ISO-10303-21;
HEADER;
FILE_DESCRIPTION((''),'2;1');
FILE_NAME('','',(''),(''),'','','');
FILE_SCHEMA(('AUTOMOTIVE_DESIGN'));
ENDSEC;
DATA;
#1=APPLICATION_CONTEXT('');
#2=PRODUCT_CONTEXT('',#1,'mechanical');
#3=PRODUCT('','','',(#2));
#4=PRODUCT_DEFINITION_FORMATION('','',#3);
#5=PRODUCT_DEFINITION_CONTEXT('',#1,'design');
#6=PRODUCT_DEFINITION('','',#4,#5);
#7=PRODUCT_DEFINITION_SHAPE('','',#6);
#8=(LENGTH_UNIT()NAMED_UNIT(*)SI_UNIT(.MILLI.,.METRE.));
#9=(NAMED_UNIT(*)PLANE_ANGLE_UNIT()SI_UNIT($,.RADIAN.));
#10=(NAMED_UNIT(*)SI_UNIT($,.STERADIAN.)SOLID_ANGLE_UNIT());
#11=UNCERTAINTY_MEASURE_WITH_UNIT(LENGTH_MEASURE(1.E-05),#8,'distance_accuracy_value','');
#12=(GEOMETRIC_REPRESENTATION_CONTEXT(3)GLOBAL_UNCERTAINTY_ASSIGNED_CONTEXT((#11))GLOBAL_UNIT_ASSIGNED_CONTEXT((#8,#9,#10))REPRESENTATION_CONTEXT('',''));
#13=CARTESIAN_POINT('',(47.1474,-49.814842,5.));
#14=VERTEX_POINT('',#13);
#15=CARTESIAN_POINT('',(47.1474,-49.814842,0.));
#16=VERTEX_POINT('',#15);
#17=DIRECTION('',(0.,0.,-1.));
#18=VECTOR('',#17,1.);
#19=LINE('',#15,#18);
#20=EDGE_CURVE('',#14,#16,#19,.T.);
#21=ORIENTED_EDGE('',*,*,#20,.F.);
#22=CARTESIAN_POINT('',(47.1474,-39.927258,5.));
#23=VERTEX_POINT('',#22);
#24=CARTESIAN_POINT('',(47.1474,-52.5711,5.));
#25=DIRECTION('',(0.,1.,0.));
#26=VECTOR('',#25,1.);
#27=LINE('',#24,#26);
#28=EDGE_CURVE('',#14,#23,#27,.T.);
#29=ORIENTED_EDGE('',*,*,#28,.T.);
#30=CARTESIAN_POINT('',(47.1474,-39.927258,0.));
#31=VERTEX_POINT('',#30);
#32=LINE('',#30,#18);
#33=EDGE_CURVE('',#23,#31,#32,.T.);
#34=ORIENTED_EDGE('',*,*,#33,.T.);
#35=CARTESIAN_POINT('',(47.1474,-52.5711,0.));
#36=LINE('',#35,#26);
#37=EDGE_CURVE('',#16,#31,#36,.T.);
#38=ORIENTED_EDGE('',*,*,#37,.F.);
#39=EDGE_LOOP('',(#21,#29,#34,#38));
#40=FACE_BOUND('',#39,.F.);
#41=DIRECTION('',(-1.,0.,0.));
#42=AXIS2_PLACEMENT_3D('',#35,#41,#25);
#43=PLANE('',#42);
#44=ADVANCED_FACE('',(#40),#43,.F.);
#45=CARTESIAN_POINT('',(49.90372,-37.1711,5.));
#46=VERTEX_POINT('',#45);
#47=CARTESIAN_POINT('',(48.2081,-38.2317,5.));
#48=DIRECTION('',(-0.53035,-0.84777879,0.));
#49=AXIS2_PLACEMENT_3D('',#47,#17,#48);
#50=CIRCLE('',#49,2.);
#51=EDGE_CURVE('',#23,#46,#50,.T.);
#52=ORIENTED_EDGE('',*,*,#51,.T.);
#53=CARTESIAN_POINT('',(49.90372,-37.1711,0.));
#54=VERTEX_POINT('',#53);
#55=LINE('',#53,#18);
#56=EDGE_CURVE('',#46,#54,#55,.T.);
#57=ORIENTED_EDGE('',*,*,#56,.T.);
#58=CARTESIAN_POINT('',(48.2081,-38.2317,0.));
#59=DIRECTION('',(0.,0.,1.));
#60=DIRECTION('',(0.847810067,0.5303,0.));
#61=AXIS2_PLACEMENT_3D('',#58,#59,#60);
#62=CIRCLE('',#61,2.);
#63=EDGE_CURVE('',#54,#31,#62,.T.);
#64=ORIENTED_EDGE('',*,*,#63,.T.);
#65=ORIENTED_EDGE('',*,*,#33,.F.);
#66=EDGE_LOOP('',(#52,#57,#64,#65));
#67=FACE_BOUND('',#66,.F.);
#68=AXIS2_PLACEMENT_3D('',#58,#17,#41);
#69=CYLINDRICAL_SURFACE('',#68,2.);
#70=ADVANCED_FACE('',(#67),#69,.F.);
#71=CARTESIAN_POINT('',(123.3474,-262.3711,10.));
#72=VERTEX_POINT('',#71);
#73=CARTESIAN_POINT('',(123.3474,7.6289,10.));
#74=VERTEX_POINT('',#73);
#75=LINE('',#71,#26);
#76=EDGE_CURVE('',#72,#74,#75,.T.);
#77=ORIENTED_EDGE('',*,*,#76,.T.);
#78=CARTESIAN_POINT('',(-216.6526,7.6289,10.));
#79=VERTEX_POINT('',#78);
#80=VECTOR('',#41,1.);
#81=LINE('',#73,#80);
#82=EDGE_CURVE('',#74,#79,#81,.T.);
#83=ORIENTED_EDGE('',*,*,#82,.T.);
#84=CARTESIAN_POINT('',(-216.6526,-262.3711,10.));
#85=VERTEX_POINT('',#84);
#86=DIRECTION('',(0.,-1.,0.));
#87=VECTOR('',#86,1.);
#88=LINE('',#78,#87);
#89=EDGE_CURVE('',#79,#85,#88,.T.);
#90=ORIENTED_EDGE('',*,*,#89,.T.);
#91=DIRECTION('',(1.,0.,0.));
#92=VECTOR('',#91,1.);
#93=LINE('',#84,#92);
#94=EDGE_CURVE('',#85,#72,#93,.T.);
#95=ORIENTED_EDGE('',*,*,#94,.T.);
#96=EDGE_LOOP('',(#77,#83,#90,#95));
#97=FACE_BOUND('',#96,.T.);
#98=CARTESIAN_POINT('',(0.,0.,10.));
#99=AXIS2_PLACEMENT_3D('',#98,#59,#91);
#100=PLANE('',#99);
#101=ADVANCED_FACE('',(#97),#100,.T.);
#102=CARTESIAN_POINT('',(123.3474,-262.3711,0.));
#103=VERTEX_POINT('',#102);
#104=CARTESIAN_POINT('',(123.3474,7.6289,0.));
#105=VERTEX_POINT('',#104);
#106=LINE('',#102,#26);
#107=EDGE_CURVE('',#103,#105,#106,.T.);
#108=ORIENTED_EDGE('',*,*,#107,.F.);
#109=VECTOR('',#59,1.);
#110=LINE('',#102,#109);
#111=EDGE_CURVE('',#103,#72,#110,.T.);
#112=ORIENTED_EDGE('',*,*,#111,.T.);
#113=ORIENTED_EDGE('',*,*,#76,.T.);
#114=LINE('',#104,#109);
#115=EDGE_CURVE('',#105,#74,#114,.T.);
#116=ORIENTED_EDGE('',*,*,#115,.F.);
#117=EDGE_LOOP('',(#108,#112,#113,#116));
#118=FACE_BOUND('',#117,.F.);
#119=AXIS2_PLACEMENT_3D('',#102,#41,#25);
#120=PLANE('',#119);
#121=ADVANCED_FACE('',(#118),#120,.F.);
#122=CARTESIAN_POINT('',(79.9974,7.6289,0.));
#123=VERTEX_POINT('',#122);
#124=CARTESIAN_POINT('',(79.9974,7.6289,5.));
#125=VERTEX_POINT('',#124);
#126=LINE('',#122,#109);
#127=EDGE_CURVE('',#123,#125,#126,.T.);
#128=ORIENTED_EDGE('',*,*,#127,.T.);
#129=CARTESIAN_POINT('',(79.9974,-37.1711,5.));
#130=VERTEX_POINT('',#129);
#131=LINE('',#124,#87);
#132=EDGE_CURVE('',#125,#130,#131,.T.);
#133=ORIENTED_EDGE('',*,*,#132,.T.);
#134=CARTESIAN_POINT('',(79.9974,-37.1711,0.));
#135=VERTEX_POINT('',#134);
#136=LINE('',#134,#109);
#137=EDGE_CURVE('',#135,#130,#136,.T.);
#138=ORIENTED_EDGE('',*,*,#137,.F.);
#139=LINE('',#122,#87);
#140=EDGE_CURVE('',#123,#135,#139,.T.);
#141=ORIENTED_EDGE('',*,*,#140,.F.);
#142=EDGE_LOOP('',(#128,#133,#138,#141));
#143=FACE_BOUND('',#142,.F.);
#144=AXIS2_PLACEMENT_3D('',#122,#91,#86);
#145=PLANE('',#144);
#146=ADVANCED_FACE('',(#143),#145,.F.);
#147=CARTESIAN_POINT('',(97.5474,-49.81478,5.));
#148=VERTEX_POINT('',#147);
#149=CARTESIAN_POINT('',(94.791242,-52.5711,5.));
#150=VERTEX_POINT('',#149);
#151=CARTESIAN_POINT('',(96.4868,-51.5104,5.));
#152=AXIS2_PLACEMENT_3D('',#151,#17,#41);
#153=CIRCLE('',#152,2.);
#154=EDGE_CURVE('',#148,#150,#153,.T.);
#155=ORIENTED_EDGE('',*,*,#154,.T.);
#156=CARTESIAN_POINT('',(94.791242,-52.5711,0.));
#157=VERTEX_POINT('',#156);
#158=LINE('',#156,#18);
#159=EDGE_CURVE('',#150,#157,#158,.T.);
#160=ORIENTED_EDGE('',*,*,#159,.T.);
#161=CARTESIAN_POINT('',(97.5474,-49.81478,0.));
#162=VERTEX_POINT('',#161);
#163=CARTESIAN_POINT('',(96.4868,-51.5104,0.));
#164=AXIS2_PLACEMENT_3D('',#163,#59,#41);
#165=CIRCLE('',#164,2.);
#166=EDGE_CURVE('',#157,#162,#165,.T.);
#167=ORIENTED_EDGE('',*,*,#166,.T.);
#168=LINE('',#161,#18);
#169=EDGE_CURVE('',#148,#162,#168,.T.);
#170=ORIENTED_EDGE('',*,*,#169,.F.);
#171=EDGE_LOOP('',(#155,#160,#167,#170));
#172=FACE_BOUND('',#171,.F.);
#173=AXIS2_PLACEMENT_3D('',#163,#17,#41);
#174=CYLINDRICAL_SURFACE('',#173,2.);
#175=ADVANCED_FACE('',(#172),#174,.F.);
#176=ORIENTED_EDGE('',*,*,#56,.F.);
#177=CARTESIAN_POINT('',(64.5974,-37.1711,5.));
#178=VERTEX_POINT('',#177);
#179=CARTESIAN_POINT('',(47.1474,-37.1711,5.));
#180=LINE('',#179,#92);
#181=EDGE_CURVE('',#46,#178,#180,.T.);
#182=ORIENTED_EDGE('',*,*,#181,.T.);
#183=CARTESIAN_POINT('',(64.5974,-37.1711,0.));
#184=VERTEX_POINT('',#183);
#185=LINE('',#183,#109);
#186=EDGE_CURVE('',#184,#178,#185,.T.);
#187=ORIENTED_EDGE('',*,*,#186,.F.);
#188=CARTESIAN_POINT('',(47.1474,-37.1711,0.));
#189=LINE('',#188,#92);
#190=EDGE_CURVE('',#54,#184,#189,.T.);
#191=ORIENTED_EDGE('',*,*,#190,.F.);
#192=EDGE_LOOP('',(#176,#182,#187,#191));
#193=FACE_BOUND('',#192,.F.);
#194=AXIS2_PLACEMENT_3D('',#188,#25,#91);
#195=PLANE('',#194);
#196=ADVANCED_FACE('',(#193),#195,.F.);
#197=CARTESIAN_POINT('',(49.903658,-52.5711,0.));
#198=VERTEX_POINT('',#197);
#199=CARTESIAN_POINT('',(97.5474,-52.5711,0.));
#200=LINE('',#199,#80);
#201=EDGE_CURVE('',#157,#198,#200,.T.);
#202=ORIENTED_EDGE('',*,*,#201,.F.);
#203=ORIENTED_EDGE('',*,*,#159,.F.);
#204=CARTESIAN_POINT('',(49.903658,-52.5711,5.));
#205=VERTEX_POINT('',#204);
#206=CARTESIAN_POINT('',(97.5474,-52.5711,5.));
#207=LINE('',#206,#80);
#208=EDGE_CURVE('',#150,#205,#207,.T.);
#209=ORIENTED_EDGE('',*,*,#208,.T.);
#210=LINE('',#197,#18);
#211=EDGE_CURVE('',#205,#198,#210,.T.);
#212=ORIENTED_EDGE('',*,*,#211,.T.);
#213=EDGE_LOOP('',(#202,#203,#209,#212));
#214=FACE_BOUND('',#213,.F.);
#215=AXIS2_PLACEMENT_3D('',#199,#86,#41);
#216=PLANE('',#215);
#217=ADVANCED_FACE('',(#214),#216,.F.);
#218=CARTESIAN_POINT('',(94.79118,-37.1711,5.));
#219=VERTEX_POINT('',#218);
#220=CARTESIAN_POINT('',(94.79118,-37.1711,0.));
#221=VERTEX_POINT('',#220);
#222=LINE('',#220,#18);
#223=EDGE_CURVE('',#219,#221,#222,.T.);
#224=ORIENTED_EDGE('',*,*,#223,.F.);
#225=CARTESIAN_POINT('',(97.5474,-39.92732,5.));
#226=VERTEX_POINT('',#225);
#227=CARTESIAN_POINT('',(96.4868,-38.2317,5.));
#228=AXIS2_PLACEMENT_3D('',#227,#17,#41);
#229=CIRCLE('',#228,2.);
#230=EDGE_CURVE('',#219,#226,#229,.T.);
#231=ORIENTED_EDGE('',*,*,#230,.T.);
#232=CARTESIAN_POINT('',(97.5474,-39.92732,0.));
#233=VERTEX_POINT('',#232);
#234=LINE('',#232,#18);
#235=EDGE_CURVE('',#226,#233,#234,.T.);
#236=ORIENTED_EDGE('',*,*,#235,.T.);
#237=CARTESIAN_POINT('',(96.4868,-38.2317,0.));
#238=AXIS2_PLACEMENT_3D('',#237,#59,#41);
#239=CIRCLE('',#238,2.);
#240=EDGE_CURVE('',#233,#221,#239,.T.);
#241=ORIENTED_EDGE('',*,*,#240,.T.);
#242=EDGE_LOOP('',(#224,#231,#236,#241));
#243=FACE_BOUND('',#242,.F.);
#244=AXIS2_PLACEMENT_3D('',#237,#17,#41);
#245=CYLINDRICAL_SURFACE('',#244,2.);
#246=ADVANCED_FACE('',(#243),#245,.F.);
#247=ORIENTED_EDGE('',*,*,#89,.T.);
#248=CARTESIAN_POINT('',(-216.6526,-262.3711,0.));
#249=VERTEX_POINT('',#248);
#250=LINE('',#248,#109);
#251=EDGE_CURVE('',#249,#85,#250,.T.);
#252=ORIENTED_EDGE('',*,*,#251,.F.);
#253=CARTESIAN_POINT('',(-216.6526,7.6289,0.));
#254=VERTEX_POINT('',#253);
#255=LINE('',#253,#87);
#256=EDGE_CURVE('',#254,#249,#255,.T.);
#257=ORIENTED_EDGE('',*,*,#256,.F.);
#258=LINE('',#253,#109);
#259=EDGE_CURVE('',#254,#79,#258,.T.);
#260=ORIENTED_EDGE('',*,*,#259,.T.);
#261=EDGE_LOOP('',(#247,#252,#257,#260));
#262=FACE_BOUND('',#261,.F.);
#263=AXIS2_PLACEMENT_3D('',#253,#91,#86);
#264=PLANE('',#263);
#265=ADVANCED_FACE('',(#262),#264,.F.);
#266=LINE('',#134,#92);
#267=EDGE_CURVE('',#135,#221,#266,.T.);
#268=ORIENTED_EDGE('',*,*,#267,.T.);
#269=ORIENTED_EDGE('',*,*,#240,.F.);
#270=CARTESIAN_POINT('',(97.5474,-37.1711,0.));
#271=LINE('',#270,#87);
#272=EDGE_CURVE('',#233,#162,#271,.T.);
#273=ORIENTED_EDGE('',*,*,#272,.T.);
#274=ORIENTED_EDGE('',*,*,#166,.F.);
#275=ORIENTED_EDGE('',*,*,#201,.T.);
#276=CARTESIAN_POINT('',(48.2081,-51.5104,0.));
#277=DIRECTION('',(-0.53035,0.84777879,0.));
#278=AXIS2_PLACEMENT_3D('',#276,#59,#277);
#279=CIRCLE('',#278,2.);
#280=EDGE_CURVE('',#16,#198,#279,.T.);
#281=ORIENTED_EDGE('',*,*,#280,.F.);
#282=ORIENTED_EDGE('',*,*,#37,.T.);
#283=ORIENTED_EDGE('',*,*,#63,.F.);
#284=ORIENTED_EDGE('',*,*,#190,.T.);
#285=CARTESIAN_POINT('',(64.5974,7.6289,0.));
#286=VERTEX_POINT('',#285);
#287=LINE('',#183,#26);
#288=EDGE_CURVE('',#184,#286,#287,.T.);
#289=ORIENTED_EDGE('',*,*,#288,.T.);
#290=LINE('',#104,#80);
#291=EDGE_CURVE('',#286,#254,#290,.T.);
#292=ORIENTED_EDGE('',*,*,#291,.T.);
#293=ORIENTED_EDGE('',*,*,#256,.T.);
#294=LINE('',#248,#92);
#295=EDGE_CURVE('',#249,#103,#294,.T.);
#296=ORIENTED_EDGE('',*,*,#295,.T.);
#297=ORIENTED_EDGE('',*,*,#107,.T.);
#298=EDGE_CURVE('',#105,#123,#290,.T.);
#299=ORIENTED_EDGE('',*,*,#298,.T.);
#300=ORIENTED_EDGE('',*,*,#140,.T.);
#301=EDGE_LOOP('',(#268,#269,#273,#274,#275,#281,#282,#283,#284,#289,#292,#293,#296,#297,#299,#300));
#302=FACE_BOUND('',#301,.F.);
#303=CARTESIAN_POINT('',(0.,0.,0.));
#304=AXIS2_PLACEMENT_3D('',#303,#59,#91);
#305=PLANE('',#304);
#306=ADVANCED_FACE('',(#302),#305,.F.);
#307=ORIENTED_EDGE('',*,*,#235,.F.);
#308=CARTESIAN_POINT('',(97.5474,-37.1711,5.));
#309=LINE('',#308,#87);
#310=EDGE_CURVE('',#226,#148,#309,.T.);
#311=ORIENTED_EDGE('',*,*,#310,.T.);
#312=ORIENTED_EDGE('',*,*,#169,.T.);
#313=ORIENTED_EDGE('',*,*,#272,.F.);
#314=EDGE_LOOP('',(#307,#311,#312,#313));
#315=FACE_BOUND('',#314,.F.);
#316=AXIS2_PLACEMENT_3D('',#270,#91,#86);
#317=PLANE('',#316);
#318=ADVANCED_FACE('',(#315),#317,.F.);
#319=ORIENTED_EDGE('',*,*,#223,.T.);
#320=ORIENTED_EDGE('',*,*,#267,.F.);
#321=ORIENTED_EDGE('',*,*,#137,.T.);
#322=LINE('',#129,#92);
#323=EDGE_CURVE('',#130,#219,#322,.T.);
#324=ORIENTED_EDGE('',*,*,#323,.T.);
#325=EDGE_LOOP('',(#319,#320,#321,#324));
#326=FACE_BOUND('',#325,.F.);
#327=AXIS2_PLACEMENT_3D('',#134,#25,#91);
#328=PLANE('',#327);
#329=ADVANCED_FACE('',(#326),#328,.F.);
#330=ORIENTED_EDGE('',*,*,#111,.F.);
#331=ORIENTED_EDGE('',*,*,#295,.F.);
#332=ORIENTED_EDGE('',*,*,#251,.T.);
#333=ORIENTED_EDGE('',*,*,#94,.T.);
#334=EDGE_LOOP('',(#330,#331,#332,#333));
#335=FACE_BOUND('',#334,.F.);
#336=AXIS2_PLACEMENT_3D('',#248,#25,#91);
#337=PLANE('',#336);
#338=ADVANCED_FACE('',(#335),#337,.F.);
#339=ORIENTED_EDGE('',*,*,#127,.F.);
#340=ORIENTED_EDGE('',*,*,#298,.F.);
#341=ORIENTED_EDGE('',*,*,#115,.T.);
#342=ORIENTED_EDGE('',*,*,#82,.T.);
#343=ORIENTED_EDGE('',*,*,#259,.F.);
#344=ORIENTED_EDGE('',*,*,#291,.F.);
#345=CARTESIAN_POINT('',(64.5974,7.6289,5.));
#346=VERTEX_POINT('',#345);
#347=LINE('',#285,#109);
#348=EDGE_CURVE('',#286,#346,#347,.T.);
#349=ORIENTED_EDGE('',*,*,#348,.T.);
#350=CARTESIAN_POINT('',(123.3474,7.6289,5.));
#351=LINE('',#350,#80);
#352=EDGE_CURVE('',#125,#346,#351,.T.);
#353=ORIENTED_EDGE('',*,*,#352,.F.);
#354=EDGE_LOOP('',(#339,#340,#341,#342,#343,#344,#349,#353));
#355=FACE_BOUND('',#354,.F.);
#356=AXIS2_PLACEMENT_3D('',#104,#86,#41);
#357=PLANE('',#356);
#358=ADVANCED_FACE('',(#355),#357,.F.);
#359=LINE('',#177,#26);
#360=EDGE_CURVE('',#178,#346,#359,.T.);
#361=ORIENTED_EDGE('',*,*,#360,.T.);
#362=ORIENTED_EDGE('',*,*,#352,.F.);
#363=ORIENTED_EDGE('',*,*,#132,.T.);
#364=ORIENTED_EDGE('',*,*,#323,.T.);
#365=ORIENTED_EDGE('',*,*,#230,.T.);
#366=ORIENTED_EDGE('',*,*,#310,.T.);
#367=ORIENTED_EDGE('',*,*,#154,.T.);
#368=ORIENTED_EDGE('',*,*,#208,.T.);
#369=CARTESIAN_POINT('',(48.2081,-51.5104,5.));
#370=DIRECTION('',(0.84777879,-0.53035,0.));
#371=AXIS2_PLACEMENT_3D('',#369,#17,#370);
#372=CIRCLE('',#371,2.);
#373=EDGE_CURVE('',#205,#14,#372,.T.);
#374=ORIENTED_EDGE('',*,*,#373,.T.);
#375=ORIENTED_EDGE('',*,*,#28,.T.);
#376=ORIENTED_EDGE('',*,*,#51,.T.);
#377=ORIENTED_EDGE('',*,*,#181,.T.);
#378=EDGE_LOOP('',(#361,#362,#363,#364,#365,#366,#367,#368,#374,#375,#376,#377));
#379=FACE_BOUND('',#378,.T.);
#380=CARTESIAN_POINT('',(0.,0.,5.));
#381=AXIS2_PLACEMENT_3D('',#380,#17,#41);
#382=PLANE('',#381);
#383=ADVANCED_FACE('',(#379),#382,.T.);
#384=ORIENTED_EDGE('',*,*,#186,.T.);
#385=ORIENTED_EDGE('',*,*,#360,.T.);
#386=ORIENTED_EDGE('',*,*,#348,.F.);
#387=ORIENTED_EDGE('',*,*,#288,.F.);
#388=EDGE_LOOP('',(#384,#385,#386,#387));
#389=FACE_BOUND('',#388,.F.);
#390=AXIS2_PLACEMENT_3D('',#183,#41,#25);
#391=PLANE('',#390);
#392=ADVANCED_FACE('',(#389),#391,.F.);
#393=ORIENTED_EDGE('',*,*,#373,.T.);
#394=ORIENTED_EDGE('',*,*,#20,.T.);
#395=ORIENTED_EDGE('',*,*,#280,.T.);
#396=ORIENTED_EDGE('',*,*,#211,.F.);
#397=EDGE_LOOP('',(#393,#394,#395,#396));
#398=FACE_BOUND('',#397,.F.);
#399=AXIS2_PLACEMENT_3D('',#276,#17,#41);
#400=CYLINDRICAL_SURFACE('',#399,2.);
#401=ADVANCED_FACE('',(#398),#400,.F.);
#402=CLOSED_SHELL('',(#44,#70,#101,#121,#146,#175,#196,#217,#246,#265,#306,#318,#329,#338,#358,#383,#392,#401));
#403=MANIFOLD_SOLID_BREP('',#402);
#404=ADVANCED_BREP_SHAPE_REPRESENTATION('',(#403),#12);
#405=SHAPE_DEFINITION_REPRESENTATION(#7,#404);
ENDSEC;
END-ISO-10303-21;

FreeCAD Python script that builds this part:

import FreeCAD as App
import Part
import Sketcher
from FreeCAD import Vector
Q = App.Units.Quantity


def add_polygon(sketch, points):
    """Adds a closed chain of lines whose ends are joined by coincident constraints."""
    first, n = sketch.GeometryCount, len(points)
    for a, b in zip(points, points[1:] + points[:1]):
        sketch.addGeometry(Part.LineSegment(App.Vector(*a, 0), App.Vector(*b, 0)), False)
    for i in range(n):
        sketch.addConstraint(Sketcher.Constraint("Coincident", first + i, 2, first + (i + 1) % n, 1))

doc = App.newDocument("Part")
body = doc.addObject("PartDesign::Body", "Body")

# Sketch on XY plane
sketch1 = body.newObject("Sketcher::SketchObject", "Sketch")
sketch1.AttachmentSupport = (doc.getObject("XY_Plane"), [""])
sketch1.MapMode = "FlatFace"
add_polygon(sketch1, [(-217, 8), (-217, -262), (123, -262), (123, 8)])  # lines 0-3
sketch1.addConstraint([
    Sketcher.Constraint("Vertical", 0),
    Sketcher.Constraint("Horizontal", 1),
    Sketcher.Constraint("Vertical", 2),
    Sketcher.Constraint("Horizontal", 3),
    Sketcher.Constraint("DistanceX", 1, 1, 1, 2, Q("340 mm")),
    Sketcher.Constraint("DistanceY", 0, 2, 0, 1, Q("270 mm")),
    Sketcher.Constraint("DistanceY", 0, 2, -1, 1, Q("262.371 mm")),
    Sketcher.Constraint("DistanceX", 0, 2, -1, 1, Q("216.6526 mm")),
])
pad1 = body.newObject("PartDesign::Pad", "Pad")
pad1.Profile = sketch1
pad1.Length = 10

# Sketch on XY plane
sketch2 = body.newObject("Sketcher::SketchObject", "Sketch001")
sketch2.AttachmentSupport = (doc.getObject("XY_Plane"), [""])
sketch2.MapMode = "FlatFace"
add_polygon(sketch2, [(65, 8), (80, 8), (80, -37), (98, -37), (98, -53), (47, -53), (47, -37), (65, -37)])  # lines 0-7
sketch2.addConstraint([
    Sketcher.Constraint("Horizontal", 0),
    Sketcher.Constraint("Vertical", 1),
    Sketcher.Constraint("Horizontal", 2),
    Sketcher.Constraint("Vertical", 3),
    Sketcher.Constraint("Horizontal", 4),
    Sketcher.Constraint("Vertical", 5),
    Sketcher.Constraint("Horizontal", 6),
    Sketcher.Constraint("Vertical", 7),
    Sketcher.Constraint("Horizontal", 2, 2, 5, 2),
    Sketcher.Constraint("Equal", 0, 3),
    Sketcher.Constraint("DistanceX", 0, 1, 0, 2, Q("15.4 mm")),
    Sketcher.Constraint("DistanceX", 4, 2, 4, 1, Q("50.4 mm")),
    Sketcher.Constraint("DistanceY", 1, 2, 1, 1, Q("44.8 mm")),
    Sketcher.Constraint("DistanceX", 2, 1, 2, 2, Q("17.55 mm")),
    Sketcher.Constraint("DistanceY", -1, 1, 0, 2, Q("7.629 mm")),
    Sketcher.Constraint("DistanceX", -1, 1, 0, 2, Q("79.9974 mm")),
])
pocket1 = body.newObject("PartDesign::Pocket", "Pocket")
pocket1.Profile = sketch2
pocket1.Length = 5
pocket1.Reversed = True

# Sketch on XY plane
sketch3 = body.newObject("Sketcher::SketchObject", "Sketch002")
sketch3.AttachmentSupport = (doc.getObject("XY_Plane"), [""])
sketch3.MapMode = "FlatFace"
sketch3.addGeometry([
    Part.Circle(Vector(48.2, -38.2, 0), Vector(0, 0, 1), 2),
    Part.Circle(Vector(96.5, -38.2, 0), Vector(0, 0, 1), 2),
    Part.Circle(Vector(96.5, -51.5, 0), Vector(0, 0, 1), 2),
    Part.Circle(Vector(48.2, -51.5, 0), Vector(0, 0, 1), 2),
], False)
sketch3.addConstraint([
    Sketcher.Constraint("Equal", 0, 1),
    Sketcher.Constraint("Equal", 1, 2),
    Sketcher.Constraint("Equal", 2, 3),
    Sketcher.Constraint("Horizontal", 0, 3, 1, 3),
    Sketcher.Constraint("Horizontal", 2, 3, 3, 3),
    Sketcher.Constraint("Vertical", 1, 3, 2, 3),
    Sketcher.Constraint("Vertical", 0, 3, 3, 3),
    Sketcher.Constraint("Diameter", 0, Q("4 mm")),
    Sketcher.Constraint("DistanceX", -1, 1, 0, 3, Q("48.208 mm")),
    Sketcher.Constraint("DistanceY", 0, 3, -1, 1, Q("38.2317 mm")),
    Sketcher.Constraint("DistanceX", -1, 1, 1, 3, Q("96.4868 mm")),
    Sketcher.Constraint("DistanceY", 2, 3, -1, 1, Q("51.5104 mm")),
])
pocket2 = body.newObject("PartDesign::Pocket", "Pocket001")
pocket2.Profile = sketch3
pocket2.Length = 5
pocket2.Reversed = True

doc.recompute()
